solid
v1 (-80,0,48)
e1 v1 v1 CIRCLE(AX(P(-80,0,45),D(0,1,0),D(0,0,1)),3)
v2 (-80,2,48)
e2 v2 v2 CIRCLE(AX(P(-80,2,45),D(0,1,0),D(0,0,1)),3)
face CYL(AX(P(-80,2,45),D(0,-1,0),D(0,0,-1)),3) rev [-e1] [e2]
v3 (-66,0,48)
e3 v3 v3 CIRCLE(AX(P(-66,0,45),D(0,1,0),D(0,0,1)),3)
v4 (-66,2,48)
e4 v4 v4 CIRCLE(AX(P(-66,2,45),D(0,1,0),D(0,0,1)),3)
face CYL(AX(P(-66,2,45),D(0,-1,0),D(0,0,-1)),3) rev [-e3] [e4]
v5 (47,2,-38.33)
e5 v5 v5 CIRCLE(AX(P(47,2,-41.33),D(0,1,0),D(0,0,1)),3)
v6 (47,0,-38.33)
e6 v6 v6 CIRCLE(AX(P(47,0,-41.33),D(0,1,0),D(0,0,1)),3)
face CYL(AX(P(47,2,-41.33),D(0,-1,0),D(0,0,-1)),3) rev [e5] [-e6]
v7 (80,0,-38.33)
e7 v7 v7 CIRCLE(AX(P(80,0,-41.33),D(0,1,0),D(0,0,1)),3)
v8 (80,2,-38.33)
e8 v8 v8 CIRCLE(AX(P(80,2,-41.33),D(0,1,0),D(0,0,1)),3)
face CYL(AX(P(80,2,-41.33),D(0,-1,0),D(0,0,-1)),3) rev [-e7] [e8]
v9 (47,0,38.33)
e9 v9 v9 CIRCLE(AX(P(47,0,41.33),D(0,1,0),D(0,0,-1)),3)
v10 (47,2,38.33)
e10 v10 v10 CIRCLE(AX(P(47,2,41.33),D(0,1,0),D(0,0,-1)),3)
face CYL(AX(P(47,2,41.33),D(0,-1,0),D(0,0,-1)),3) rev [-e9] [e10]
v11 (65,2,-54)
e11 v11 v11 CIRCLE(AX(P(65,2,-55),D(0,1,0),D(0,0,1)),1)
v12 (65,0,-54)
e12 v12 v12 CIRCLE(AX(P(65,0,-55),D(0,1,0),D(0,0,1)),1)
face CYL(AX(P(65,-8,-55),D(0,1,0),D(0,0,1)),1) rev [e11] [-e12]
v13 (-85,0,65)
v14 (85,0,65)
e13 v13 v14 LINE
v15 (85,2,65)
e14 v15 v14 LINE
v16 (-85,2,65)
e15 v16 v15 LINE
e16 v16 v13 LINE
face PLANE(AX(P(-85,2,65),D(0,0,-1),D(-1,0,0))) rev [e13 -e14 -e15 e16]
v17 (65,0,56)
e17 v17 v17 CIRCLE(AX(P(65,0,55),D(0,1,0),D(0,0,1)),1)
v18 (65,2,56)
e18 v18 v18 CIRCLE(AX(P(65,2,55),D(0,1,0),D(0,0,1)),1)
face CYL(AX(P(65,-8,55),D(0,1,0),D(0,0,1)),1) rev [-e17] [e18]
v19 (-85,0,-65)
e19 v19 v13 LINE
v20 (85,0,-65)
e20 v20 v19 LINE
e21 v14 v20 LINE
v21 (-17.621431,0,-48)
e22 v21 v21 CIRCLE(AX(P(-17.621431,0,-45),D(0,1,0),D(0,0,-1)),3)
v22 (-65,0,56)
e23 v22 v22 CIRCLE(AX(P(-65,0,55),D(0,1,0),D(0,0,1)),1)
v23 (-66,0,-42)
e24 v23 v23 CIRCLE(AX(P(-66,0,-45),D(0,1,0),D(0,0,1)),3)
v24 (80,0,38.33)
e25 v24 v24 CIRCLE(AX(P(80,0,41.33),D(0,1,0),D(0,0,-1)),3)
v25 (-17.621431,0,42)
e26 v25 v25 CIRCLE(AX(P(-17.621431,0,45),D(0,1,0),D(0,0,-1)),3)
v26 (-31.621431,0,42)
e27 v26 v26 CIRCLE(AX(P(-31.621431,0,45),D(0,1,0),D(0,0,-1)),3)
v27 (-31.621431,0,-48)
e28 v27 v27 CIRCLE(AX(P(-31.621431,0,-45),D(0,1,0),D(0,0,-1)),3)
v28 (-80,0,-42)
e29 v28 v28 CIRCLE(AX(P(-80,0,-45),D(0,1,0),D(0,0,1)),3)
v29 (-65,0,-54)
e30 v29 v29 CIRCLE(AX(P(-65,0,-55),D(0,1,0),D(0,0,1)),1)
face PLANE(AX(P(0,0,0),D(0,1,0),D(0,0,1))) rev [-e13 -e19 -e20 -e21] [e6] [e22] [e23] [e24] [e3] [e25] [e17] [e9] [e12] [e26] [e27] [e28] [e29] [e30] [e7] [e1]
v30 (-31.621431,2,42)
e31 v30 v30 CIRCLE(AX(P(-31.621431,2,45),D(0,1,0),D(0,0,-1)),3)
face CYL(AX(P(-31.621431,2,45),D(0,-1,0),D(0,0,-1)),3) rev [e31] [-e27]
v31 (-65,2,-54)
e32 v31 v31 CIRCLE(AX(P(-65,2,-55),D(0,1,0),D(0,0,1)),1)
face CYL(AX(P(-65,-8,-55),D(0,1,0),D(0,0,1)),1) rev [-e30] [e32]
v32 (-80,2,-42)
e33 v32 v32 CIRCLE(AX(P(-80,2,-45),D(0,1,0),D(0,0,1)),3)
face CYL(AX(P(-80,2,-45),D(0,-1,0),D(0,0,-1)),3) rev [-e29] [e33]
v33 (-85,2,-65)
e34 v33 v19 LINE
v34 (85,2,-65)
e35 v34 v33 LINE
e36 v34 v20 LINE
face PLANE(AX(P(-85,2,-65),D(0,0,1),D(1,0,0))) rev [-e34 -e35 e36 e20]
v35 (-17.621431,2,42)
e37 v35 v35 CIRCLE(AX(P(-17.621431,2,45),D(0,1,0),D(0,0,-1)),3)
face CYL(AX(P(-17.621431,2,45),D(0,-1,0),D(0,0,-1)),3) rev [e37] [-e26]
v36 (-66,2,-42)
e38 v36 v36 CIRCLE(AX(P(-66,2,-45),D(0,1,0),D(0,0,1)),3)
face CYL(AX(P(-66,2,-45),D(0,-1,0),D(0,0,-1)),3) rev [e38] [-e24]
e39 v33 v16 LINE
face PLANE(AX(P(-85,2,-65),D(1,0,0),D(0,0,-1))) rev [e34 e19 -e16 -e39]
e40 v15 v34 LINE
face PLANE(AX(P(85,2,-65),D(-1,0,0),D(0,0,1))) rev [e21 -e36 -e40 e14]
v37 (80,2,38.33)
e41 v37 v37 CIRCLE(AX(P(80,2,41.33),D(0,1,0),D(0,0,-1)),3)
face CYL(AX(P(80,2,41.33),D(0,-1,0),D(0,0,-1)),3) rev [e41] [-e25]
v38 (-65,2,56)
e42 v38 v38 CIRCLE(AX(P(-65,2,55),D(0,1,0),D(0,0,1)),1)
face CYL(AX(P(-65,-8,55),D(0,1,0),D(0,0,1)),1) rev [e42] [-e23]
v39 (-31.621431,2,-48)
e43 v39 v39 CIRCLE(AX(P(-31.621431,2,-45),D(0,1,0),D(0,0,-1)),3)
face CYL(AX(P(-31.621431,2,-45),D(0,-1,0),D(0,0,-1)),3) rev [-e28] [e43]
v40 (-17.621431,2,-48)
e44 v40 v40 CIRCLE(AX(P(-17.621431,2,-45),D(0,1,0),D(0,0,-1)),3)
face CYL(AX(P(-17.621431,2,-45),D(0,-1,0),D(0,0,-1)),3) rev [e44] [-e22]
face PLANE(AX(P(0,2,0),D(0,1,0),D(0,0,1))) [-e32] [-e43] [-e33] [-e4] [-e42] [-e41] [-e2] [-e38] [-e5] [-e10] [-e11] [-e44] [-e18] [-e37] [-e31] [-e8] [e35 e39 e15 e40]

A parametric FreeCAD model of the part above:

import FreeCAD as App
import Part
import Sketcher

V = App.Vector
Q = App.Units.Quantity


def add_polygon(sketch, points):
    """Adds a closed chain of lines whose ends are joined by coincident constraints."""
    first, n = sketch.GeometryCount, len(points)
    for a, b in zip(points, points[1:] + points[:1]):
        sketch.addGeometry(Part.LineSegment(App.Vector(*a, 0), App.Vector(*b, 0)), False)
    for i in range(n):
        sketch.addConstraint(Sketcher.Constraint("Coincident", first + i, 2, first + (i + 1) % n, 1))

doc = App.newDocument("Part")
body = doc.addObject("PartDesign::Body", "Body")

# Sketch on XZ plane
sketch1 = doc.addObject("Sketcher::SketchObject", "Sketch")
body.addObject(sketch1)
sketch1.AttachmentSupport = (doc.XZ_Plane, [""])
sketch1.MapMode = "FlatFace"
add_polygon(sketch1, [(-85, -65), (-85, 65), (85, 65), (85, -65)])  # lines 0-3
sketch1.addGeometry(Part.Circle(V(-80, 45, 0), V(0, 0, 1), 3), False)  # 4
sketch1.addGeometry(Part.Circle(V(-66, 45, 0), V(0, 0, 1), 3), False)  # 5
sketch1.addGeometry(Part.Circle(V(-31.6, 45, 0), V(0, 0, 1), 3), False)  # 6
sketch1.addGeometry(Part.Circle(V(-17.6, 45, 0), V(0, 0, 1), 3), False)  # 7
sketch1.addGeometry(Part.Circle(V(47, 41.3, 0), V(0, 0, 1), 3), False)  # 8
sketch1.addGeometry(Part.Circle(V(80, 41.3, 0), V(0, 0, 1), 3), False)  # 9
sketch1.addGeometry(Part.Circle(V(-80, -45, 0), V(0, 0, 1), 3), False)  # 10
sketch1.addGeometry(Part.Circle(V(-66, -45, 0), V(0, 0, 1), 3), False)  # 11
sketch1.addGeometry(Part.Circle(V(-31.6, -45, 0), V(0, 0, 1), 3), False)  # 12
sketch1.addGeometry(Part.Circle(V(-17.6, -45, 0), V(0, 0, 1), 3), False)  # 13
sketch1.addGeometry(Part.Circle(V(47, -41.3, 0), V(0, 0, 1), 3), False)  # 14
sketch1.addGeometry(Part.Circle(V(80, -41.3, 0), V(0, 0, 1), 3), False)  # 15
sketch1.addConstraint([
    Sketcher.Constraint("Vertical", 0),
    Sketcher.Constraint("Horizontal", 1),
    Sketcher.Constraint("Vertical", 2),
    Sketcher.Constraint("Horizontal", 3),
    Sketcher.Constraint("Equal", 4, 5),
    Sketcher.Constraint("Equal", 5, 6),
    Sketcher.Constraint("Equal", 6, 7),
    Sketcher.Constraint("Equal", 7, 8),
    Sketcher.Constraint("Equal", 8, 9),
    Sketcher.Constraint("Equal", 9, 10),
    Sketcher.Constraint("Equal", 10, 11),
    Sketcher.Constraint("Equal", 11, 12),
    Sketcher.Constraint("Equal", 12, 13),
    Sketcher.Constraint("Equal", 13, 14),
    Sketcher.Constraint("Equal", 14, 15),
    Sketcher.Constraint("Symmetric", 0, 2, 2, 2, -1, 1),
    Sketcher.Constraint("Symmetric", 4, 3, 10, 3, -1),
    Sketcher.Constraint("Symmetric", 5, 3, 11, 3, -1),
    Sketcher.Constraint("Symmetric", 6, 3, 12, 3, -1),
    Sketcher.Constraint("Symmetric", 7, 3, 13, 3, -1),
    Sketcher.Constraint("Symmetric", 8, 3, 14, 3, -1),
    Sketcher.Constraint("Symmetric", 9, 3, 15, 3, -1),
    Sketcher.Constraint("Horizontal", 4, 3, 5, 3),
    Sketcher.Constraint("Horizontal", 5, 3, 6, 3),
    Sketcher.Constraint("Horizontal", 6, 3, 7, 3),
    Sketcher.Constraint("Horizontal", 8, 3, 9, 3),
    Sketcher.Constraint("Diameter", 4, Q("6 mm")),
    Sketcher.Constraint("DistanceX", 1, 1, 1, 2, Q("170 mm")),
    Sketcher.Constraint("DistanceY", 0, 1, 0, 2, Q("130 mm")),
    Sketcher.Constraint("DistanceX", 4, 3, -1, 1, Q("80 mm")),
    Sketcher.Constraint("DistanceY", -1, 1, 4, 3, Q("45 mm")),
    Sketcher.Constraint("DistanceX", 5, 3, -1, 1, Q("66 mm")),
    Sketcher.Constraint("DistanceX", -1, 1, 8, 3, Q("47 mm")),
    Sketcher.Constraint("DistanceX", -1, 1, 9, 3, Q("80 mm")),
    Sketcher.Constraint("DistanceX", 6, 3, 7, 3, Q("14 mm")),
    Sketcher.Constraint("DistanceY", -1, 1, 8, 3, Q("41.33 mm")),
    Sketcher.Constraint("DistanceX", 6, 3, -1, 1, Q("31.621431 mm")),
])
pad1 = doc.addObject("PartDesign::Pad", "Pad")
body.addObject(pad1)
pad1.Profile = sketch1
pad1.Length = 2
pad1.Reversed = True

# Sketch on XZ plane
sketch2 = doc.addObject("Sketcher::SketchObject", "Sketch001")
body.addObject(sketch2)
sketch2.AttachmentSupport = (doc.XZ_Plane, [""])
sketch2.MapMode = "FlatFace"
sketch2.AttachmentOffset = App.Placement(V(0, 0, -2), App.Rotation())
sketch2.addGeometry([
    Part.Circle(V(-65, 55, 0), V(0, 0, 1), 1),
    Part.Circle(V(-65, -55, 0), V(0, 0, 1), 1),
    Part.Circle(V(65, -55, 0), V(0, 0, 1), 1),
    Part.Circle(V(65, 55, 0), V(0, 0, 1), 1),
], False)
sketch2.addConstraint([
    Sketcher.Constraint("Equal", 0, 1),
    Sketcher.Constraint("Equal", 1, 2),
    Sketcher.Constraint("Equal", 2, 3),
    Sketcher.Constraint("Symmetric", 0, 3, 2, 3, -1, 1),
    Sketcher.Constraint("Symmetric", 1, 3, 3, 3, -1, 1),
    Sketcher.Constraint("Symmetric", 1, 3, 2, 3, -2),
    Sketcher.Constraint("Diameter", 0, Q("2 mm")),
    Sketcher.Constraint("DistanceX", 0, 3, -1, 1, Q("65 mm")),
    Sketcher.Constraint("DistanceY", -1, 1, 0, 3, Q("55 mm")),
])
pocket1 = doc.addObject("PartDesign::Pocket", "Pocket")
body.addObject(pocket1)
pocket1.Profile = sketch2
pocket1.Length = 10
pocket1.Reversed = True

doc.recompute()
